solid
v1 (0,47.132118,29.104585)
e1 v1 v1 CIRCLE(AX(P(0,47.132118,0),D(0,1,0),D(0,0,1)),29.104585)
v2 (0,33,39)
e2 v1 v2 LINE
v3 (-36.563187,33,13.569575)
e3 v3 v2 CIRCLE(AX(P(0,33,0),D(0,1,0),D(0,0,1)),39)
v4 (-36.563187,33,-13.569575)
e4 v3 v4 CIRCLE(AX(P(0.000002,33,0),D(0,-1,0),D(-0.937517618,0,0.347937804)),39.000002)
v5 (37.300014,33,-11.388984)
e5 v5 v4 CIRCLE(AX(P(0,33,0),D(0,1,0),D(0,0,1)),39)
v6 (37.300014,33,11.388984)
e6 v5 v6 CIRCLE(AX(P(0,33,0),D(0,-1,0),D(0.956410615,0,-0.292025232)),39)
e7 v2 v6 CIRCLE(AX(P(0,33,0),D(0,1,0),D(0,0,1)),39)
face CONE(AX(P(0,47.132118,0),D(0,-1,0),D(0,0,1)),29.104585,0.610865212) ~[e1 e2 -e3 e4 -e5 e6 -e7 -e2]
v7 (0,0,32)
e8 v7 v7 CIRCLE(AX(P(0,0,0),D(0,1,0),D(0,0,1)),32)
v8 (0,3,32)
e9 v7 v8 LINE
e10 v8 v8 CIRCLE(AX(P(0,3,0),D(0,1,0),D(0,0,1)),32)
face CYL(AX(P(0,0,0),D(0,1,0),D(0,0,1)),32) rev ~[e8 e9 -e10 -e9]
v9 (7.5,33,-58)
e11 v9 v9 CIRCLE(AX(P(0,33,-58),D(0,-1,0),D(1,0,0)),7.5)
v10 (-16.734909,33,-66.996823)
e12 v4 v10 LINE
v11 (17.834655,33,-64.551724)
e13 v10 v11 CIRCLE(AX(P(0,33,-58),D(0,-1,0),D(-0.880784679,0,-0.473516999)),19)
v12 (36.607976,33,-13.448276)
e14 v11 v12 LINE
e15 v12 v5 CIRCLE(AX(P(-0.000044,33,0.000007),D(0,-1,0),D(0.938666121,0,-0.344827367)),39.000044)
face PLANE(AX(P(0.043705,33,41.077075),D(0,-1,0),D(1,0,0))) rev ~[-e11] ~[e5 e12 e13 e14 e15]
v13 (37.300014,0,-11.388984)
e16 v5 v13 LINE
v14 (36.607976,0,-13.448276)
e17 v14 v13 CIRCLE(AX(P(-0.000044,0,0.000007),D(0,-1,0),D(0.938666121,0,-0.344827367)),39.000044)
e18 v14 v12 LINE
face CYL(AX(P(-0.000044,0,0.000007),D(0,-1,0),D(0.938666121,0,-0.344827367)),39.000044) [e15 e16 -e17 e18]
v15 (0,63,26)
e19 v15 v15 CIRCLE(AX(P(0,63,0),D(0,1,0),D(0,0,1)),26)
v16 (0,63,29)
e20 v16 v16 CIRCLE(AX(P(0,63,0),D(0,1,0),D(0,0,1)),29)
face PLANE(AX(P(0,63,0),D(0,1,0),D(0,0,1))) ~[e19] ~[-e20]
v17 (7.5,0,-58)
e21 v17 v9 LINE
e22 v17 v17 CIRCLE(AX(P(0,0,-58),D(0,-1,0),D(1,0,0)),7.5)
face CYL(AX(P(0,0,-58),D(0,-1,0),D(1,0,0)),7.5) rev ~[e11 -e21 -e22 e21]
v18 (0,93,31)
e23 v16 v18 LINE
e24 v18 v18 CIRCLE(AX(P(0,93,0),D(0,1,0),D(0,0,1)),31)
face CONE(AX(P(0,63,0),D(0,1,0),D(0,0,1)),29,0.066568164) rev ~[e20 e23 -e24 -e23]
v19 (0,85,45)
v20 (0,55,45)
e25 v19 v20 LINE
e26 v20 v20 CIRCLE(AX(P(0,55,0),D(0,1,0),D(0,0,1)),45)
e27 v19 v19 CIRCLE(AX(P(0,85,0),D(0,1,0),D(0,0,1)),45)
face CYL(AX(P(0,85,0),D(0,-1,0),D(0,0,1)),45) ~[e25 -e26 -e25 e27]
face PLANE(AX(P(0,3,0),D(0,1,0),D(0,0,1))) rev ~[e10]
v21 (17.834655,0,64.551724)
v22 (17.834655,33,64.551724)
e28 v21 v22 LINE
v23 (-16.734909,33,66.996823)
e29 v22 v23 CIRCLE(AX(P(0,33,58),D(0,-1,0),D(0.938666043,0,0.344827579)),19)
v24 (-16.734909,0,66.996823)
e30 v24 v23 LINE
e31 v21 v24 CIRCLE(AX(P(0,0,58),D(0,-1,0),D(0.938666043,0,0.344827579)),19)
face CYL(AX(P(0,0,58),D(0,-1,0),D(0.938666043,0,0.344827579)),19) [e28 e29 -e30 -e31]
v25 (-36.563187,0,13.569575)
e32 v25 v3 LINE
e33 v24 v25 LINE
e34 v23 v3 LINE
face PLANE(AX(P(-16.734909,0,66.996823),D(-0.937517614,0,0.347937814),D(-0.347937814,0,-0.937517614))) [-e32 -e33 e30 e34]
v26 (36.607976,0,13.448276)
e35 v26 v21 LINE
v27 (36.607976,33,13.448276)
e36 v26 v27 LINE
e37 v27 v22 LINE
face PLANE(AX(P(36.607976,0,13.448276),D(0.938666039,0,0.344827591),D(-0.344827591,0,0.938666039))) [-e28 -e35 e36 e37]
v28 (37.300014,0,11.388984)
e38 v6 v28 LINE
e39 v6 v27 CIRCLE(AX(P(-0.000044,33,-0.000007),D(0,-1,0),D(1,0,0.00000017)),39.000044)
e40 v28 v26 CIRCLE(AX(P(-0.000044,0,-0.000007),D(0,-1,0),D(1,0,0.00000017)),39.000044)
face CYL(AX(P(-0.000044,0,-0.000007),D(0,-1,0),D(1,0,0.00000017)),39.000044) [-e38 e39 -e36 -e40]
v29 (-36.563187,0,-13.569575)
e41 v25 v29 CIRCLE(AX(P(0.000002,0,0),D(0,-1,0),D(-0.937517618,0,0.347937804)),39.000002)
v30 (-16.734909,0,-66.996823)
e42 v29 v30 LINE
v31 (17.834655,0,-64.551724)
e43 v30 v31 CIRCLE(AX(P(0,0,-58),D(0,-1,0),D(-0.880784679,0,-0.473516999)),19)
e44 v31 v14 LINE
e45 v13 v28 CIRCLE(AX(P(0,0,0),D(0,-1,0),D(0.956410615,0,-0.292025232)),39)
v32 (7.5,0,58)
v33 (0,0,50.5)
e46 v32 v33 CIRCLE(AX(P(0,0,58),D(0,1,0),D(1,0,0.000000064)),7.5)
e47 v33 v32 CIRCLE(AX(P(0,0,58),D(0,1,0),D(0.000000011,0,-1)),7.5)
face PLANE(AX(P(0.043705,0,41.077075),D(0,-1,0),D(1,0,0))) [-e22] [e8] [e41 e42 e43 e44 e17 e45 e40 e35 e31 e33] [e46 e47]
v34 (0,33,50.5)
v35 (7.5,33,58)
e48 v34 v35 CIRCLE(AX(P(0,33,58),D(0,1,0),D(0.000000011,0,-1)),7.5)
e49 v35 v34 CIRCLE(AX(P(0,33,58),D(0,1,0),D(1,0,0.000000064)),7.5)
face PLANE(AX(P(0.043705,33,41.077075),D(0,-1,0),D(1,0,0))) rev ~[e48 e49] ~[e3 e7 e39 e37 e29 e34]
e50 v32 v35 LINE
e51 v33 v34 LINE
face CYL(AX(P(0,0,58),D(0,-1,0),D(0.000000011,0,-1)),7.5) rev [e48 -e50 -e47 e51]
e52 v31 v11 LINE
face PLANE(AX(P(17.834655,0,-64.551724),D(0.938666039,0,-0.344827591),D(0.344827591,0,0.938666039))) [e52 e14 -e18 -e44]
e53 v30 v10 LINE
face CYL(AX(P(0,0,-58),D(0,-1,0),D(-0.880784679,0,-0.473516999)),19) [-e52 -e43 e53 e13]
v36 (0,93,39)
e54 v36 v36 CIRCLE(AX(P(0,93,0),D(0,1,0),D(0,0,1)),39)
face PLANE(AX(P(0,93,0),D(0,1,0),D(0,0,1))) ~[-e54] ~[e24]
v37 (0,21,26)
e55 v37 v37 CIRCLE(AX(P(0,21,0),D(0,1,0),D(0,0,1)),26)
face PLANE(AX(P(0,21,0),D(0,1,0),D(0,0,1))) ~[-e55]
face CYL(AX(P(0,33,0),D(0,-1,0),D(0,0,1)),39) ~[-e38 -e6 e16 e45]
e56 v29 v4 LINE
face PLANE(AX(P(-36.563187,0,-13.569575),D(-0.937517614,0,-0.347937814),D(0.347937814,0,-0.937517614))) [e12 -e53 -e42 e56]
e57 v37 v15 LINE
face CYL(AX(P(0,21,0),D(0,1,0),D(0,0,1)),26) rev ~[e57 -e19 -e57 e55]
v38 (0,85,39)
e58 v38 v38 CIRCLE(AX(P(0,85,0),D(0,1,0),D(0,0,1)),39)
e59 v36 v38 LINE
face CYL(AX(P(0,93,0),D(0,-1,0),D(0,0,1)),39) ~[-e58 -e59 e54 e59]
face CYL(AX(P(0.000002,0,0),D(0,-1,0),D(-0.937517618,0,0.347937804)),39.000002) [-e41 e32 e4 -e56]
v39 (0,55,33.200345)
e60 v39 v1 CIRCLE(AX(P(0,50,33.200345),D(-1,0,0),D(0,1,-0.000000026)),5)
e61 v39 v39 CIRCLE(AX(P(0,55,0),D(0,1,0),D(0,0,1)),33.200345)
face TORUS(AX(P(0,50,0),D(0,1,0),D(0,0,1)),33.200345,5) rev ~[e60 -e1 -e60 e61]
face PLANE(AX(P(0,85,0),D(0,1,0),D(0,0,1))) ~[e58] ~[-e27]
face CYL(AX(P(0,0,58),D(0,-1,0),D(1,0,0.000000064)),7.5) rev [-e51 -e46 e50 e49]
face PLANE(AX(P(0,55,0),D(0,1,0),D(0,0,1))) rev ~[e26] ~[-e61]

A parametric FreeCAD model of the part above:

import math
import FreeCAD as App
import Part
import Sketcher

V = App.Vector
Q = App.Units.Quantity

doc = App.newDocument("Part")
body = doc.addObject("PartDesign::Body", "Body")

# Sketch on YZ plane
sketch1 = body.newObject("Sketcher::SketchObject", "Sketch")
sketch1.AttachmentSupport = (doc.getObject("YZ_Plane"), [""])
sketch1.MapMode = "FlatFace"
sketch1.addGeometry([
    Part.LineSegment(V(3, 32, 0), V(3, 0, 0)),  # 0
    Part.LineSegment(V(3, 0, 0), V(21, 0, 0)),  # 1
    Part.LineSegment(V(21, 0, 0), V(21, 26, 0)),  # 2
    Part.LineSegment(V(21, 26, 0), V(63, 26, 0)),  # 3
    Part.LineSegment(V(63, 26, 0), V(63, 29, 0)),  # 4
    Part.LineSegment(V(63, 29, 0), V(93, 31, 0)),  # 5
    Part.LineSegment(V(93, 31, 0), V(93, 39, 0)),  # 6
    Part.LineSegment(V(93, 39, 0), V(85, 39, 0)),  # 7
    Part.LineSegment(V(85, 39, 0), V(85, 45, 0)),  # 8
    Part.LineSegment(V(85, 45, 0), V(55, 45, 0)),  # 9
    Part.LineSegment(V(55, 45, 0), V(55, 33.2, 0)),  # 10
    Part.ArcOfCircle(Part.Circle(V(50, 33.2, 0), V(0, 0, 1), 5), math.radians(-125), math.radians(0)),  # 11
    Part.LineSegment(V(47.1, 29.1, 0), V(33, 39, 0)),  # 12
    Part.LineSegment(V(33, 39, 0), V(0, 39, 0)),  # 13
    Part.LineSegment(V(0, 39, 0), V(0, 32, 0)),  # 14
    Part.LineSegment(V(0, 32, 0), V(3, 32, 0)),  # 15
], False)
sketch1.addConstraint([
    Sketcher.Constraint("Coincident", 0, 2, 1, 1),
    Sketcher.Constraint("Coincident", 1, 2, 2, 1),
    Sketcher.Constraint("Coincident", 2, 2, 3, 1),
    Sketcher.Constraint("Coincident", 3, 2, 4, 1),
    Sketcher.Constraint("Coincident", 4, 2, 5, 1),
    Sketcher.Constraint("Coincident", 5, 2, 6, 1),
    Sketcher.Constraint("Coincident", 6, 2, 7, 1),
    Sketcher.Constraint("Coincident", 7, 2, 8, 1),
    Sketcher.Constraint("Coincident", 8, 2, 9, 1),
    Sketcher.Constraint("Coincident", 9, 2, 10, 1),
    Sketcher.Constraint("Tangent", 10, 2, 11, 2),
    Sketcher.Constraint("Tangent", 11, 1, 12, 1),
    Sketcher.Constraint("Coincident", 12, 2, 13, 1),
    Sketcher.Constraint("Coincident", 13, 2, 14, 1),
    Sketcher.Constraint("Coincident", 14, 2, 15, 1),
    Sketcher.Constraint("Coincident", 15, 2, 0, 1),
    Sketcher.Constraint("Vertical", 0),
    Sketcher.Constraint("Horizontal", 1),
    Sketcher.Constraint("Vertical", 2),
    Sketcher.Constraint("Horizontal", 3),
    Sketcher.Constraint("Vertical", 4),
    Sketcher.Constraint("Vertical", 6),
    Sketcher.Constraint("Horizontal", 7),
    Sketcher.Constraint("Vertical", 8),
    Sketcher.Constraint("Horizontal", 9),
    Sketcher.Constraint("Vertical", 10),
    Sketcher.Constraint("Horizontal", 13),
    Sketcher.Constraint("Vertical", 14),
    Sketcher.Constraint("Horizontal", 15),
    Sketcher.Constraint("PointOnObject", 0, 2, -1),
    Sketcher.Constraint("PointOnObject", 13, 2, -2),
    Sketcher.Constraint("Horizontal", 7, 2, 12, 2),
    Sketcher.Constraint("Equal", 15, 4),
    Sketcher.Constraint("Equal", 7, 6),
    Sketcher.Constraint("Radius", 11, 5.0),
    Sketcher.Constraint("DistanceX", 1, 1, 1, 2, 18.0),
    Sketcher.Constraint("DistanceX", 3, 1, 3, 2, 42.0),
    Sketcher.Constraint("DistanceX", 7, 2, 7, 1, 8.0),
    Sketcher.Constraint("DistanceX", 9, 2, 9, 1, 30.0),
    Sketcher.Constraint("DistanceX", 13, 2, 13, 1, 33.0),
    Sketcher.Constraint("DistanceX", 15, 1, 15, 2, 3.0),
    Sketcher.Constraint("DistanceY", 0, 2, 0, 1, 32.0),
    Sketcher.Constraint("DistanceY", 2, 1, 2, 2, 26.0),
    Sketcher.Constraint("DistanceY", 8, 1, 8, 2, 6.0),
    Sketcher.Constraint("DistanceY", 14, 2, 14, 1, 7.0),
    Sketcher.Constraint("Angle", 12, Q("145.000002 deg")),
    Sketcher.Constraint("DistanceX", -1, 1, 11, 3, 50.0),
])
revolution = body.newObject("PartDesign::Revolution", "Revolution")
revolution.Profile = sketch1
revolution.ReferenceAxis = (sketch1, ["H_Axis"])
revolution.Angle = 360

# Sketch on XZ plane
sketch2 = body.newObject("Sketcher::SketchObject", "Sketch001")
sketch2.AttachmentSupport = (doc.getObject("XZ_Plane"), [""])
sketch2.MapMode = "FlatFace"
sketch2.addGeometry([
    Part.LineSegment(V(37, 13, 0), V(18, 65, 0)),  # 0
    Part.ArcOfCircle(Part.Circle(V(0, 58, 0), V(0, 0, 1), 19), math.radians(20), math.radians(152)),  # 1
    Part.LineSegment(V(-17, 67, 0), V(-37, 14, 0)),  # 2
    Part.ArcOfCircle(Part.Circle(V(0, 0, 0), V(0, 0, 1), 39), math.radians(160), math.radians(200)),  # 3
    Part.LineSegment(V(-37, -14, 0), V(-17, -67, 0)),  # 4
    Part.ArcOfCircle(Part.Circle(V(0, -58, 0), V(0, 0, 1), 19), math.radians(-152), math.radians(-20)),  # 5
    Part.LineSegment(V(18, -65, 0), V(37, -13, 0)),  # 6
    Part.ArcOfCircle(Part.Circle(V(0, 0, 0), V(0, 0, 1), 39), math.radians(-20), math.radians(0)),  # 7
    Part.ArcOfCircle(Part.Circle(V(0, 0, 0), V(0, 0, 1), 39), math.radians(0), math.radians(20)),  # 8
    Part.Circle(V(0, -58, 0), V(0, 0, 1), 8),  # 9
    Part.Circle(V(0, 0, 0), V(0, 0, 1), 32),  # 10
    Part.ArcOfCircle(Part.Circle(V(0, 58, 0), V(0, 0, 1), 7), math.radians(-90), math.radians(0)),  # 11
    Part.ArcOfCircle(Part.Circle(V(0, 58, 0), V(0, 0, 1), 8), math.radians(0), math.radians(270)),  # 12
], False)
sketch2.addConstraint([
    Sketcher.Constraint("Tangent", 0, 2, 1, 1),
    Sketcher.Constraint("Coincident", 1, 2, 2, 1),
    Sketcher.Constraint("Tangent", 2, 2, 3, 1),
    Sketcher.Constraint("Tangent", 3, 2, 4, 1),
    Sketcher.Constraint("Coincident", 4, 2, 5, 1),
    Sketcher.Constraint("Tangent", 5, 2, 6, 1),
    Sketcher.Constraint("Tangent", 6, 2, 7, 1),
    Sketcher.Constraint("Tangent", 7, 2, 8, 1),
    Sketcher.Constraint("Tangent", 8, 2, 0, 1),
    Sketcher.Constraint("Tangent", 11, 1, 12, 2),
    Sketcher.Constraint("Coincident", 12, 1, 11, 2),
    Sketcher.Constraint("Coincident", 3, 3, -1, 1),
    Sketcher.Constraint("Coincident", 10, 3, -1, 1),
    Sketcher.Constraint("Coincident", 9, 3, 5, 3),
    Sketcher.Constraint("Coincident", 11, 3, 1, 3),
    Sketcher.Constraint("Equal", 1, 5),
    Sketcher.Constraint("Equal", 7, 8),
    Sketcher.Constraint("Equal", 9, 11),
    Sketcher.Constraint("Symmetric", 1, 3, 5, 3, -1, 1),
    Sketcher.Constraint("Symmetric", 1, 2, 4, 2, -1),
    Sketcher.Constraint("PointOnObject", 7, 2, -1),
    Sketcher.Constraint("PointOnObject", 11, 1, -2),
    Sketcher.Constraint("Horizontal", 11, 3, 12, 1),
    Sketcher.Constraint("Vertical", 0, 2, 5, 2),
    Sketcher.Constraint("Diameter", 9, 15.0),
    Sketcher.Constraint("Diameter", 10, 64.0),
    Sketcher.Constraint("Radius", 1, 19.0),
    Sketcher.Constraint("Radius", 3, 39.000002),
    Sketcher.Constraint("DistanceY", -1, 1, 1, 3, 58.0),
    Sketcher.Constraint("DistanceX", -1, 1, 7, 2, 39.0),
    Sketcher.Constraint("Radius", 7, 39.000044),
    Sketcher.Constraint("DistanceY", 0, 2, 1, 2, 2.445099),
])
pad1 = body.newObject("PartDesign::Pad", "Pad")
pad1.Profile = sketch2
pad1.Length = 33
pad1.Reversed = True

doc.recompute()
